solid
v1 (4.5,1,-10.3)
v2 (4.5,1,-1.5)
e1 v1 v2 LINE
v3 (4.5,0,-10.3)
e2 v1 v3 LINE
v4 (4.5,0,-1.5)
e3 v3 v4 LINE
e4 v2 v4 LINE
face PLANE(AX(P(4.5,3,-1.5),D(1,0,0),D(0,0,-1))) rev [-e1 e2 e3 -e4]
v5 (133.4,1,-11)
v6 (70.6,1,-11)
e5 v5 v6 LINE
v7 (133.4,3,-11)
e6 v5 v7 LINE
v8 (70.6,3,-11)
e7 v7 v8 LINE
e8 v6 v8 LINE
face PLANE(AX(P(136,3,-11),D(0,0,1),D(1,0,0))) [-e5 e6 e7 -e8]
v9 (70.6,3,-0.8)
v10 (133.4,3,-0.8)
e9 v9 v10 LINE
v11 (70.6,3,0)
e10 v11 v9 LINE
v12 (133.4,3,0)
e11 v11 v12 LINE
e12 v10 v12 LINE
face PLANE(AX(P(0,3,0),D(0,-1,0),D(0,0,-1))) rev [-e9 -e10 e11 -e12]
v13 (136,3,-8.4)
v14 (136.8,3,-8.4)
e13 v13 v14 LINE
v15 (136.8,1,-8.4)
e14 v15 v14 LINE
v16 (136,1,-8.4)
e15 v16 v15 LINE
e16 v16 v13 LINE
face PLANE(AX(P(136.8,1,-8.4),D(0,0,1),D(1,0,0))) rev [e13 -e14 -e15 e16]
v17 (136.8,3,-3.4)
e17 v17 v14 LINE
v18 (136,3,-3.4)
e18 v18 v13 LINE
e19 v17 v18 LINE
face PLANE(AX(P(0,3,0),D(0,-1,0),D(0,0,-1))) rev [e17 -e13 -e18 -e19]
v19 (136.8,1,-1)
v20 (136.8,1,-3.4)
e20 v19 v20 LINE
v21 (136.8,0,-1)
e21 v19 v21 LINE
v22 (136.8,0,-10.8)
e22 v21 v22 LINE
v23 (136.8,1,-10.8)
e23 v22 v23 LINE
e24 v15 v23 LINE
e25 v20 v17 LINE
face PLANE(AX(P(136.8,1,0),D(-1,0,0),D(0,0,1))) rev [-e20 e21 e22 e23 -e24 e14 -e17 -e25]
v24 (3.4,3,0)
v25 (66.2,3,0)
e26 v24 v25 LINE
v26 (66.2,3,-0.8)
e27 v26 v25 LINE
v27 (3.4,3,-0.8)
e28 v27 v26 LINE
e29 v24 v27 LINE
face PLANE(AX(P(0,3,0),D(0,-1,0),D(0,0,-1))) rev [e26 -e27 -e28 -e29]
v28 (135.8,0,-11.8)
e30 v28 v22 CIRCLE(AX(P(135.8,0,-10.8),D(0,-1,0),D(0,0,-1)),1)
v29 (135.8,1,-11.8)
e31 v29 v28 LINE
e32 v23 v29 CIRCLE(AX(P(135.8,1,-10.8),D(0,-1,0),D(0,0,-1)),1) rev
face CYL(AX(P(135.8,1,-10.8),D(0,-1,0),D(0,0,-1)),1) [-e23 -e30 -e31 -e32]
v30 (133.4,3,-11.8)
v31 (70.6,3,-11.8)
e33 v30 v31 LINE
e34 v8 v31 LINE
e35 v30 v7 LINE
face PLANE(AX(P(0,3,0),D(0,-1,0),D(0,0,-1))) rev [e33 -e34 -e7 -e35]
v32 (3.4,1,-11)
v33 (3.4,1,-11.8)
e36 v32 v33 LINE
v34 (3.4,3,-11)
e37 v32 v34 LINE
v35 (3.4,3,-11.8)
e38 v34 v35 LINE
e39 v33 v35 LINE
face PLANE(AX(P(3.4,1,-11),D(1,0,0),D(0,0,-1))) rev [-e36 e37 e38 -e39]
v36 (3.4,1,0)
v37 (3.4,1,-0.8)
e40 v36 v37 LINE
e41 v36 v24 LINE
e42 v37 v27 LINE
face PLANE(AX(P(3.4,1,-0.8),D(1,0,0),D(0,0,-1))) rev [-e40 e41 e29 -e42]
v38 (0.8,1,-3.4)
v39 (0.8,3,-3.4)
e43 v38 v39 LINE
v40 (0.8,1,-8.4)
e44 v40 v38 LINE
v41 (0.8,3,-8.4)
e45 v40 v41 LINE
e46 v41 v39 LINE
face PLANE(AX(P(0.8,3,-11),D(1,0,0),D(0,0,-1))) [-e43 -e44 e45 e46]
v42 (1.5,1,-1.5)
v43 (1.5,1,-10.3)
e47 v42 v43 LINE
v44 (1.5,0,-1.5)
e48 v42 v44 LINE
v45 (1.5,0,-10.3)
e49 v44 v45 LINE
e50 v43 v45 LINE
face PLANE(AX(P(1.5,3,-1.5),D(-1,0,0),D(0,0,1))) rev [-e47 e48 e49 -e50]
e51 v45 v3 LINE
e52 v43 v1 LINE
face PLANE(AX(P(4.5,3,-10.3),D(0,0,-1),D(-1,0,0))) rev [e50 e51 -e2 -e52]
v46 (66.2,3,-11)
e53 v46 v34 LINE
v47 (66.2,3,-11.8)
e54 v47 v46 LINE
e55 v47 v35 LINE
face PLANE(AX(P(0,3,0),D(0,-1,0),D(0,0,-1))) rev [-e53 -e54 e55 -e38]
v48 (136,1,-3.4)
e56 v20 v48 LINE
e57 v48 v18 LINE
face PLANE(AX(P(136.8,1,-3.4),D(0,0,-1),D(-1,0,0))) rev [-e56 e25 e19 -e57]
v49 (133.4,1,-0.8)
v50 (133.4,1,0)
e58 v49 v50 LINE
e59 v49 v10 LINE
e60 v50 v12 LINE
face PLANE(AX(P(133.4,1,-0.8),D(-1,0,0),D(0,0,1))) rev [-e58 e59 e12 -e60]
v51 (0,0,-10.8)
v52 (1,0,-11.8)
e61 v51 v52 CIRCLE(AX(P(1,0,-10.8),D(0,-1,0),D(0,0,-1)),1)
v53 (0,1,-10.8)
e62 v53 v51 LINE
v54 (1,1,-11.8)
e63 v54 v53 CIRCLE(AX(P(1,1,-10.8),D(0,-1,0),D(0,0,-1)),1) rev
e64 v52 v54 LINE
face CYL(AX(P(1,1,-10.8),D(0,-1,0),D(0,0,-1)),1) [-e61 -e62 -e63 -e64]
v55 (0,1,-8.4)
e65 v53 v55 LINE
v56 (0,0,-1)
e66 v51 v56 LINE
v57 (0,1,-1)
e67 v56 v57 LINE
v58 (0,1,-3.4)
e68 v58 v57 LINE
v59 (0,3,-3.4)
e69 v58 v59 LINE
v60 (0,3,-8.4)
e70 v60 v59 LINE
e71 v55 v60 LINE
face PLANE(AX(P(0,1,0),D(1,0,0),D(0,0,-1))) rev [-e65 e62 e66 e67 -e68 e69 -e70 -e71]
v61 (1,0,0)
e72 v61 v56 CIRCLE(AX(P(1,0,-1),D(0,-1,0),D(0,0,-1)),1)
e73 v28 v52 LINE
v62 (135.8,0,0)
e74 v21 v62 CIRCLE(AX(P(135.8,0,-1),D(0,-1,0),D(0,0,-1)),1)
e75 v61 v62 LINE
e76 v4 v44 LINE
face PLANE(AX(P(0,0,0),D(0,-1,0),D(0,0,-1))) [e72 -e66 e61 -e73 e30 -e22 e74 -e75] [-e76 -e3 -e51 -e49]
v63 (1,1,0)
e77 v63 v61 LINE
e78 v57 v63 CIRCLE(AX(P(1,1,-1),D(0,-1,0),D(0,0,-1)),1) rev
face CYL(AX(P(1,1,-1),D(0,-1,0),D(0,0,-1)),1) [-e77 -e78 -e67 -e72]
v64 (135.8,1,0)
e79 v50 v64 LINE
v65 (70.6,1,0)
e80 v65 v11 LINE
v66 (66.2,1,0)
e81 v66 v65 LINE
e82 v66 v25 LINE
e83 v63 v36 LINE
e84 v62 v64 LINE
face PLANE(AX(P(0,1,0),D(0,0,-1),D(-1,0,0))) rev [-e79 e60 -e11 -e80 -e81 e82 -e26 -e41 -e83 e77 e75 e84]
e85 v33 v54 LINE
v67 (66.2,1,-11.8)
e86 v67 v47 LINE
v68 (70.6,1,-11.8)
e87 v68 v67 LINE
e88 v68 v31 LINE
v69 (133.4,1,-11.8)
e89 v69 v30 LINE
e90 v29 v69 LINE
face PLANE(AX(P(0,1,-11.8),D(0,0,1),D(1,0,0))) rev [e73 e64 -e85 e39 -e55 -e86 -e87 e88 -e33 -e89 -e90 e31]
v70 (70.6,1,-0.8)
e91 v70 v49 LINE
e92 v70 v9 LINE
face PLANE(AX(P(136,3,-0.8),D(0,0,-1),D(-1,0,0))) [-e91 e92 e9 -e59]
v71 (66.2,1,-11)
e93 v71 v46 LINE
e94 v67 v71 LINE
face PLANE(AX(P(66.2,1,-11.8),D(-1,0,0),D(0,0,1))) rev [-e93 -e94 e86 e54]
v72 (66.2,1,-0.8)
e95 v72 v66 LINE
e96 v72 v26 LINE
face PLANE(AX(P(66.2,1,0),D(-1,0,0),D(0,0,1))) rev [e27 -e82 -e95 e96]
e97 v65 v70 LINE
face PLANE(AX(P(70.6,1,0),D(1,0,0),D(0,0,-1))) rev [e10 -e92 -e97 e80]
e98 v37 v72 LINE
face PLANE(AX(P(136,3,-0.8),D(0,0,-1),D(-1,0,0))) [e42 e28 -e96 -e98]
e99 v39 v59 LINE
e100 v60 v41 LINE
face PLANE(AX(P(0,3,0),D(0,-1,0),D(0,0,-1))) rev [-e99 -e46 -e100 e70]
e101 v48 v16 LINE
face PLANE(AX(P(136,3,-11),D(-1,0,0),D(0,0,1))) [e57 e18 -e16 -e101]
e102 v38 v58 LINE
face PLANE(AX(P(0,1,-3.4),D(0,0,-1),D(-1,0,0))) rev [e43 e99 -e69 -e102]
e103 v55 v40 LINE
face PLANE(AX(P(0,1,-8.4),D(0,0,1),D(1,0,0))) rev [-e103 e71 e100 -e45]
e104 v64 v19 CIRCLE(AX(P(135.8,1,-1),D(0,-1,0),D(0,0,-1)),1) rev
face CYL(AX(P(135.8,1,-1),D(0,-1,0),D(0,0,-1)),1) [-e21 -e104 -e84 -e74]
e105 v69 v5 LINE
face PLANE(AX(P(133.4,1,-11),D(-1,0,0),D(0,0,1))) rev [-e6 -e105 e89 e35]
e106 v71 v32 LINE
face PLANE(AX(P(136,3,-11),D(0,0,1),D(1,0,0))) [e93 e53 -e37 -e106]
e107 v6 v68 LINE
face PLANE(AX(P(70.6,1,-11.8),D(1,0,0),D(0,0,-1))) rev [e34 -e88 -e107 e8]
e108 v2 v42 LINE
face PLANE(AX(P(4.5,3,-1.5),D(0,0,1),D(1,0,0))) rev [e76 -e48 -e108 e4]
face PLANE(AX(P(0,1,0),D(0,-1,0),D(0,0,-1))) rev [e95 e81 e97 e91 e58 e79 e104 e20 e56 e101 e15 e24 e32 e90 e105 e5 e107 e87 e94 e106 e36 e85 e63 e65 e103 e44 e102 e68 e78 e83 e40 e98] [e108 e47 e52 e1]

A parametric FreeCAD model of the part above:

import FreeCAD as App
import Part
import Sketcher

V = App.Vector
Q = App.Units.Quantity


def edges_at(feature, points):
    """Names of the edges that pass closest to the given points."""
    edges = feature.Shape.Edges
    near = lambda p: min(range(len(edges)), key=lambda i: edges[i].distToShape(Part.Vertex(*p))[0])
    return sorted({f"Edge{near(p) + 1}" for p in points})


def add_polygon(sketch, points):
    """Adds a closed chain of lines whose ends are joined by coincident constraints."""
    first, n = sketch.GeometryCount, len(points)
    for a, b in zip(points, points[1:] + points[:1]):
        sketch.addGeometry(Part.LineSegment(App.Vector(*a, 0), App.Vector(*b, 0)), False)
    for i in range(n):
        sketch.addConstraint(Sketcher.Constraint("Coincident", first + i, 2, first + (i + 1) % n, 1))

doc = App.newDocument("Part")
body = doc.addObject("PartDesign::Body", "Body")

sketch1 = body.newObject("Sketcher::SketchObject", "Sketch")
sketch1.AttachmentSupport = (doc.getObject("XZ_Plane"), [""])
sketch1.MapMode = "FlatFace"
add_polygon(sketch1, [(0, -11.8), (0, 0), (136.8, 0), (136.8, -11.8)])
sketch1.addConstraint([
    Sketcher.Constraint("Vertical", 0),
    Sketcher.Constraint("Horizontal", 1),
    Sketcher.Constraint("Vertical", 2),
    Sketcher.Constraint("Horizontal", 3),
    Sketcher.Constraint("Coincident", 0, 2, -1, 1),
    Sketcher.Constraint("DistanceX", 1, 1, 1, 2, Q("136.8 mm")),
    Sketcher.Constraint("DistanceY", 0, 1, 0, 2, Q("11.8 mm")),
])
pad1 = body.newObject("PartDesign::Pad", "Pad")
pad1.Profile = sketch1
pad1.Length = 1
pad1.Reversed = True

sketch2 = body.newObject("Sketcher::SketchObject", "Sketch001")
sketch2.AttachmentSupport = (doc.getObject("XZ_Plane"), [""])
sketch2.MapMode = "FlatFace"
sketch2.AttachmentOffset = App.Placement(V(0, 0, -1), App.Rotation())
add_polygon(sketch2, [(0, -11.8), (0, 0), (136.8, 0), (136.8, -11.8)])
add_polygon(sketch2, [(136, -0.8), (0.8, -0.8), (0.8, -11), (136, -11)])
sketch2.addConstraint([
    Sketcher.Constraint("Vertical", 0),
    Sketcher.Constraint("Horizontal", 1),
    Sketcher.Constraint("Vertical", 2),
    Sketcher.Constraint("Horizontal", 3),
    Sketcher.Constraint("Horizontal", 4),
    Sketcher.Constraint("Vertical", 5),
    Sketcher.Constraint("Horizontal", 6),
    Sketcher.Constraint("Vertical", 7),
    Sketcher.Constraint("Coincident", 0, 2, -1, 1),
    Sketcher.Constraint("DistanceX", 1, 1, 1, 2, Q("136.8 mm")),
    Sketcher.Constraint("DistanceX", 4, 2, 4, 1, Q("135.2 mm")),
    Sketcher.Constraint("DistanceY", 0, 1, 0, 2, Q("11.8 mm")),
    Sketcher.Constraint("DistanceY", 5, 2, 5, 1, Q("10.2 mm")),
    Sketcher.Constraint("DistanceY", 5, 2, -1, 1, Q("11 mm")),
    Sketcher.Constraint("DistanceX", -1, 1, 6, 2, Q("136 mm")),
])
pad2 = body.newObject("PartDesign::Pad", "Pad001")
pad2.Profile = sketch2
pad2.Length = 2
pad2.Reversed = True

sketch3 = body.newObject("Sketcher::SketchObject", "Sketch002")
sketch3.AttachmentSupport = (doc.getObject("XZ_Plane"), [""])
sketch3.MapMode = "FlatFace"
sketch3.AttachmentOffset = App.Placement(V(0, 0, -3), App.Rotation())
add_polygon(sketch3, [(136.8, -8.4), (136.8, -11.8), (133.4, -11.8), (133.4, -11), (136, -11), (136, -8.4)])
add_polygon(sketch3, [(3.4, -11.8), (0, -11.8), (0, -8.4), (0.8, -8.4), (0.8, -11), (3.4, -11)])
add_polygon(sketch3, [(66.2, -11.8), (66.2, -11), (70.6, -11), (70.6, -11.8)])
add_polygon(sketch3, [(0, -3.4), (0, 0), (3.4, 0), (3.4, -0.8), (0.8, -0.8), (0.8, -3.4)])
add_polygon(sketch3, [(66.2, -0.8), (66.2, 0), (70.6, 0), (70.6, -0.8)])
add_polygon(sketch3, [(133.4, 0), (136.8, 0), (136.8, -3.4), (136, -3.4), (136, -0.8), (133.4, -0.8)])
sketch3.addConstraint([
    Sketcher.Constraint("Vertical", 0),
    Sketcher.Constraint("Horizontal", 1),
    Sketcher.Constraint("Vertical", 2),
    Sketcher.Constraint("Horizontal", 3),
    Sketcher.Constraint("Vertical", 4),
    Sketcher.Constraint("Horizontal", 5),
    Sketcher.Constraint("Horizontal", 6),
    Sketcher.Constraint("Vertical", 7),
    Sketcher.Constraint("Horizontal", 8),
    Sketcher.Constraint("Vertical", 9),
    Sketcher.Constraint("Horizontal", 10),
    Sketcher.Constraint("Vertical", 11),
    Sketcher.Constraint("Vertical", 12),
    Sketcher.Constraint("Horizontal", 13),
    Sketcher.Constraint("Vertical", 14),
    Sketcher.Constraint("Horizontal", 15),
    Sketcher.Constraint("Vertical", 16),
    Sketcher.Constraint("Horizontal", 17),
    Sketcher.Constraint("Vertical", 18),
    Sketcher.Constraint("Horizontal", 19),
    Sketcher.Constraint("Vertical", 20),
    Sketcher.Constraint("Horizontal", 21),
    Sketcher.Constraint("Vertical", 22),
    Sketcher.Constraint("Horizontal", 23),
    Sketcher.Constraint("Vertical", 24),
    Sketcher.Constraint("Horizontal", 25),
    Sketcher.Constraint("Horizontal", 26),
    Sketcher.Constraint("Vertical", 27),
    Sketcher.Constraint("Horizontal", 28),
    Sketcher.Constraint("Vertical", 29),
    Sketcher.Constraint("Horizontal", 30),
    Sketcher.Constraint("Vertical", 31),
    Sketcher.Constraint("Coincident", 16, 2, -1, 1),
    Sketcher.Constraint("PointOnObject", 6, 2, -2),
    Sketcher.Constraint("PointOnObject", 22, 2, -1),
    Sketcher.Constraint("PointOnObject", 26, 2, -1),
    Sketcher.Constraint("Horizontal", 1, 2, 6, 2),
    Sketcher.Constraint("Horizontal", 5, 2, 7, 2),
    Sketcher.Constraint("Horizontal", 3, 2, 9, 2),
    Sketcher.Constraint("Horizontal", 10, 2, 12, 2),
    Sketcher.Constraint("Horizontal", 11, 2, 14, 2),
    Sketcher.Constraint("Horizontal", 19, 2, 24, 2),
    Sketcher.Constraint("Horizontal", 21, 2, 27, 2),
    Sketcher.Constraint("Horizontal", 25, 2, 29, 2),
    Sketcher.Constraint("Vertical", 11, 2, 17, 2),
    Sketcher.Constraint("Vertical", 9, 2, 19, 2),
    Sketcher.Constraint("Vertical", 15, 2, 22, 2),
    Sketcher.Constraint("Vertical", 14, 2, 23, 2),
    Sketcher.Constraint("Vertical", 5, 2, 26, 2),
    Sketcher.Constraint("Vertical", 4, 2, 28, 2),
    Sketcher.Constraint("Vertical", 2, 2, 30, 2),
    Sketcher.Constraint("Equal", 1, 6),
    Sketcher.Constraint("Equal", 5, 8),
    Sketcher.Constraint("Equal", 26, 0),
    Sketcher.Constraint("Equal", 28, 2),
    Sketcher.Constraint("Equal", 7, 16),
    Sketcher.Constraint("Equal", 14, 18),
    Sketcher.Constraint("DistanceX", 1, 2, 1, 1, Q("3.4 mm")),
    Sketcher.Constraint("DistanceX", 3, 1, 3, 2, Q("2.6 mm")),
    Sketcher.Constraint("DistanceX", 13, 1, 13, 2, Q("4.4 mm")),
    Sketcher.Constraint("DistanceY", 2, 2, -1, 1, Q("11 mm")),
    Sketcher.Constraint("DistanceX", -1, 1, 3, 2, Q("136 mm")),
    Sketcher.Constraint("DistanceX", -1, 1, 12, 2, Q("66.2 mm")),
])
pocket1 = body.newObject("PartDesign::Pocket", "Pocket")
pocket1.Profile = sketch3
pocket1.Length = 2
pocket1.Reversed = True

sketch4 = body.newObject("Sketcher::SketchObject", "Sketch003")
sketch4.AttachmentSupport = (doc.getObject("XZ_Plane"), [""])
sketch4.MapMode = "FlatFace"
add_polygon(sketch4, [(1.5, -1.5), (1.5, -10.3), (4.5, -10.3), (4.5, -1.5)])
sketch4.addConstraint([
    Sketcher.Constraint("Vertical", 0),
    Sketcher.Constraint("Horizontal", 1),
    Sketcher.Constraint("Vertical", 2),
    Sketcher.Constraint("Horizontal", 3),
    Sketcher.Constraint("DistanceX", 1, 1, 1, 2, Q("3 mm")),
    Sketcher.Constraint("DistanceY", 0, 2, 0, 1, Q("8.8 mm")),
    Sketcher.Constraint("DistanceX", -1, 1, 0, 2, Q("1.5 mm")),
    Sketcher.Constraint("DistanceY", 0, 2, -1, 1, Q("10.3 mm")),
])
pocket2 = body.newObject("PartDesign::Pocket", "Pocket001")
pocket2.Profile = sketch4
pocket2.Type = "ThroughAll"
doc.recompute()

fillet = body.newObject("PartDesign::Fillet", "Fillet")
fillet.Base = (pocket2, edges_at(pocket2, [
    (0, 0.5, -11.8),
    (136.8, 0.5, -11.8),
    (136.8, 0.5, 0),
    (0, 0.5, 0),
]))
fillet.Radius = 1

doc.recompute()
